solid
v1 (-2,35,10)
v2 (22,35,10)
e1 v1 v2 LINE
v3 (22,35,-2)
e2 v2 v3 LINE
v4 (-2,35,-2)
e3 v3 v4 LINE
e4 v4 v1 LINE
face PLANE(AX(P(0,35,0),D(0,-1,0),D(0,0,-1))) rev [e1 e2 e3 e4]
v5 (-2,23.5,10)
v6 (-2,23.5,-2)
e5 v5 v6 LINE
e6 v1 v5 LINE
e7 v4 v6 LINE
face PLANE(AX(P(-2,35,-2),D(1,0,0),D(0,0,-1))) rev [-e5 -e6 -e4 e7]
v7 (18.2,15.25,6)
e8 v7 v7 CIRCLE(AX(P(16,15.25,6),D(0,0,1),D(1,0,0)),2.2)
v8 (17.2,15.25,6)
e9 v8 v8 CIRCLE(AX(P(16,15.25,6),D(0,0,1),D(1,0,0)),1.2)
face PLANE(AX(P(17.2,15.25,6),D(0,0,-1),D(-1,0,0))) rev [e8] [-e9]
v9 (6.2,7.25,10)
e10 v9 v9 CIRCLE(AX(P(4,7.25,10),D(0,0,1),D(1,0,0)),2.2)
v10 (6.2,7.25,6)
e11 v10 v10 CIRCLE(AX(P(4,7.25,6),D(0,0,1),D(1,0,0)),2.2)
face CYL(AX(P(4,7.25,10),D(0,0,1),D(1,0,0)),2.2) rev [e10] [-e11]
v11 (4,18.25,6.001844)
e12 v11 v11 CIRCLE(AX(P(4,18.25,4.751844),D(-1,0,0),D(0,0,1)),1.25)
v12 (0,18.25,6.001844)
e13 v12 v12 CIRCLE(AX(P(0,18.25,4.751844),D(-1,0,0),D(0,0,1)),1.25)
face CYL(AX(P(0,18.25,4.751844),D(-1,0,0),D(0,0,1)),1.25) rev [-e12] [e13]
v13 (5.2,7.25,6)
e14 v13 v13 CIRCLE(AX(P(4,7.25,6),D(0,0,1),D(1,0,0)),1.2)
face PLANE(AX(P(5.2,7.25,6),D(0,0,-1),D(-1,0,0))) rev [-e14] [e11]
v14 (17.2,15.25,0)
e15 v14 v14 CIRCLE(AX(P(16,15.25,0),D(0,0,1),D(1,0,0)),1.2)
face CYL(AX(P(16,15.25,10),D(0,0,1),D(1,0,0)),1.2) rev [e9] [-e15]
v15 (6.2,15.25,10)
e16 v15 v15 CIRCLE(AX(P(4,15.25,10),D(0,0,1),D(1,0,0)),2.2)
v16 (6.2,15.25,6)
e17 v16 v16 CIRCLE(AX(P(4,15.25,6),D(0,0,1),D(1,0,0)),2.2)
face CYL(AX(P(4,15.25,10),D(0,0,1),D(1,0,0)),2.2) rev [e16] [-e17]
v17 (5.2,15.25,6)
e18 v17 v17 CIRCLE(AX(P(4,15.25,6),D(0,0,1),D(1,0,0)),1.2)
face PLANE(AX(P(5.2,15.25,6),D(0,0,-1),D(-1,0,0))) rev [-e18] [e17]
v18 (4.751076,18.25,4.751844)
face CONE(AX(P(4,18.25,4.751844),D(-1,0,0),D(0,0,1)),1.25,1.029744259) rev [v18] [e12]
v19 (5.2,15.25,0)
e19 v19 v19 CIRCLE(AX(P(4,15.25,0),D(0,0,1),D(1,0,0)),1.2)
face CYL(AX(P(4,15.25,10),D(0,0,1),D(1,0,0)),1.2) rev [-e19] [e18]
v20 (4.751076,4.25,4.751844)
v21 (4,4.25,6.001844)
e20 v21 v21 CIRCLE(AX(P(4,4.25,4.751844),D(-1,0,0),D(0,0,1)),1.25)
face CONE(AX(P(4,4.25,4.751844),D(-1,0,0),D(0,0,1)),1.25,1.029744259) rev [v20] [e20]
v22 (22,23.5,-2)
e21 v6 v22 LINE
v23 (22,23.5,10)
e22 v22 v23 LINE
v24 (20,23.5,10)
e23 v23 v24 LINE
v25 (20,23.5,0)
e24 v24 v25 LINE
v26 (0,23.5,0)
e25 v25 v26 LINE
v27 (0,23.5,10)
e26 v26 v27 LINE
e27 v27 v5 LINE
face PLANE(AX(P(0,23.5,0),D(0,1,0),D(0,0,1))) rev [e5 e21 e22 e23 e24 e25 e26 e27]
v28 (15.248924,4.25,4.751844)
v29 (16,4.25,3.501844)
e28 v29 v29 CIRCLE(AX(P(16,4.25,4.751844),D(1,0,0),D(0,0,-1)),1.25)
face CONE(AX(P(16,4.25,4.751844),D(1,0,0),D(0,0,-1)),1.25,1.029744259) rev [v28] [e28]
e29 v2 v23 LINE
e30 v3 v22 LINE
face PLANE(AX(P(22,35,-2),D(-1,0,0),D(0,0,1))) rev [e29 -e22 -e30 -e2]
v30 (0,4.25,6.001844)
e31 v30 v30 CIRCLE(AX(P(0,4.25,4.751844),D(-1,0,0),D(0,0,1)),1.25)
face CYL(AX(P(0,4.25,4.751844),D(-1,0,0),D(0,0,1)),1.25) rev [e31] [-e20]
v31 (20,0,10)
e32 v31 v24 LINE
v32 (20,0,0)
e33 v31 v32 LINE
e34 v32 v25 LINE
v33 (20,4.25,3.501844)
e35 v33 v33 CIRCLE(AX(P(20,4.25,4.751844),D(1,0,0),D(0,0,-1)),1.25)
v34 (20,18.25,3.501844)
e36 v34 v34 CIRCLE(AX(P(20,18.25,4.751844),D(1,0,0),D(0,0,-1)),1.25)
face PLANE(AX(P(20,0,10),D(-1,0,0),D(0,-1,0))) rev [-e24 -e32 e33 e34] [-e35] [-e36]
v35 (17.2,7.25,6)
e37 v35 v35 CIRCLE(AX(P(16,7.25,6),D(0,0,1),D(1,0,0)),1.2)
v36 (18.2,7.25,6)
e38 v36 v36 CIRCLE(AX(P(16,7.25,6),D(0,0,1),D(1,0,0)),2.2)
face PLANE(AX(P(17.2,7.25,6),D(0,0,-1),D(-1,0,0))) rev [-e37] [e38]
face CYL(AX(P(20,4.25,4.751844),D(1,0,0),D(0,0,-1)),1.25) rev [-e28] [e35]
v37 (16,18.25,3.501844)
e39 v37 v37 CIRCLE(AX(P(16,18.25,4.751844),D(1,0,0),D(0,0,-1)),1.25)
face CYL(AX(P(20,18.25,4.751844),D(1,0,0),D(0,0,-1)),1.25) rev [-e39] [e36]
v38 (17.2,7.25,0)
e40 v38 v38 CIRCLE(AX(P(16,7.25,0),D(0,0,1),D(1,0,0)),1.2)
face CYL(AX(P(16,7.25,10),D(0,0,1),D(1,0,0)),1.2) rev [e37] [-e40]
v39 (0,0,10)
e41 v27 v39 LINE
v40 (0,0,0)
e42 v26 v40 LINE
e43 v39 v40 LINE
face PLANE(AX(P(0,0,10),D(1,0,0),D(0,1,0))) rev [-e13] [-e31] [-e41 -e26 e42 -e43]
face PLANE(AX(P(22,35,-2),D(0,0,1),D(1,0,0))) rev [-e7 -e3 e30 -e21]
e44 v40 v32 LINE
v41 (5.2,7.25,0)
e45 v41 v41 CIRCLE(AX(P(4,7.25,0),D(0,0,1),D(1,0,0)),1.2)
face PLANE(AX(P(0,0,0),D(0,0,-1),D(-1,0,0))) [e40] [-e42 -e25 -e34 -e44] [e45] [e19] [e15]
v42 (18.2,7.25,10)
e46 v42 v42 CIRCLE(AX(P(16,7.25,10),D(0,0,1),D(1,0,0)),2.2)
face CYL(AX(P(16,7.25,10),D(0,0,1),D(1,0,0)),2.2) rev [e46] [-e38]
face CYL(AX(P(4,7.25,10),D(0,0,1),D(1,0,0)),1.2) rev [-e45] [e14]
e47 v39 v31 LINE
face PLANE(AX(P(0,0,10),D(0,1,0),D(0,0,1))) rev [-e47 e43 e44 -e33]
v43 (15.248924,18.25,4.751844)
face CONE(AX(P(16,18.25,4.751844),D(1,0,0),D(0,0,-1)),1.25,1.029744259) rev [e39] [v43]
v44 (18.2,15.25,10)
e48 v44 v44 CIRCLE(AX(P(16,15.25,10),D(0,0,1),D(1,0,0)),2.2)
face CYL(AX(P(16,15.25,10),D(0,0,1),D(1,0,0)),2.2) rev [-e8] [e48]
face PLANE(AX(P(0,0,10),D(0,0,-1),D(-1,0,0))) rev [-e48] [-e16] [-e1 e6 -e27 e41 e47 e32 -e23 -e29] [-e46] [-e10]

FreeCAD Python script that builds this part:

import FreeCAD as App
import Part
import Sketcher
from FreeCAD import Vector

doc = App.newDocument("Part")
body = doc.addObject("PartDesign::Body", "Body")

# Sketch on XY plane
sketch1 = body.newObject("Sketcher::SketchObject", "Sketch")
sketch1.AttachmentSupport = (doc.getObject("XY_Plane"), [""])
sketch1.MapMode = "FlatFace"
sketch1.addGeometry([
    Part.LineSegment(Vector(0, 22.5, 0), Vector(0, 0, 0)),
    Part.LineSegment(Vector(0, 0, 0), Vector(20, 0, 0)),
    Part.LineSegment(Vector(20, 0, 0), Vector(20, 22.5, 0)),
    Part.LineSegment(Vector(20, 22.5, 0), Vector(0, 22.5, 0)),
], False)
sketch1.addConstraint([
    Sketcher.Constraint("Coincident", 0, 2, 1, 1),
    Sketcher.Constraint("Coincident", 1, 2, 2, 1),
    Sketcher.Constraint("Coincident", 2, 2, 3, 1),
    Sketcher.Constraint("Coincident", 3, 2, 0, 1),
    Sketcher.Constraint("Vertical", 0),
    Sketcher.Constraint("Horizontal", 1),
    Sketcher.Constraint("Vertical", 2),
    Sketcher.Constraint("Horizontal", 3),
    Sketcher.Constraint("Coincident", 0, 2, -1, 1),
    Sketcher.Constraint("DistanceX", 1, 1, 1, 2, 20.0),
    Sketcher.Constraint("DistanceY", 0, 2, 0, 1, 22.5),
])
pad1 = body.newObject("PartDesign::Pad", "Pad")
pad1.Profile = sketch1
pad1.Length = 10

# Sketch on XY plane
sketch2 = body.newObject("Sketcher::SketchObject", "Sketch001")
sketch2.AttachmentSupport = (doc.getObject("XY_Plane"), [""])
sketch2.MapMode = "FlatFace"
sketch2.AttachmentOffset = App.Placement(Vector(0, 0, 10), App.Rotation())
sketch2.addGeometry([
    Part.Circle(Vector(4, 15.25, 0), Vector(0, 0, 1), 1.2),
    Part.Circle(Vector(16, 15.25, 0), Vector(0, 0, 1), 1.2),
    Part.Circle(Vector(16, 7.25, 0), Vector(0, 0, 1), 1.2),
    Part.Circle(Vector(4, 7.25, 0), Vector(0, 0, 1), 1.2),
], False)
sketch2.addConstraint([
    Sketcher.Constraint("Equal", 0, 1),
    Sketcher.Constraint("Equal", 1, 2),
    Sketcher.Constraint("Equal", 2, 3),
    Sketcher.Constraint("Horizontal", 0, 3, 1, 3),
    Sketcher.Constraint("Horizontal", 2, 3, 3, 3),
    Sketcher.Constraint("Vertical", 1, 3, 2, 3),
    Sketcher.Constraint("Vertical", 0, 3, 3, 3),
    Sketcher.Constraint("Diameter", 0, 2.4),
    Sketcher.Constraint("DistanceX", -1, 1, 0, 3, 4.0),
    Sketcher.Constraint("DistanceX", -1, 1, 1, 3, 16.0),
    Sketcher.Constraint("DistanceY", 2, 3, 1, 3, 8.0),
    Sketcher.Constraint("DistanceY", -1, 1, 0, 3, 15.25),
])
doc.recompute()
hole = body.newObject("PartDesign::Hole", "Hole")
hole.Profile = sketch2
hole.ThreadType = "None"
hole.Diameter = 2.4
hole.DepthType = "ThroughAll"
hole.HoleCutType = "Counterbore"
hole.HoleCutDiameter = 4.4
hole.HoleCutDepth = 4

# Sketch on XZ plane
sketch3 = body.newObject("Sketcher::SketchObject", "Sketch002")
sketch3.AttachmentSupport = (doc.getObject("XZ_Plane"), [""])
sketch3.MapMode = "FlatFace"
sketch3.AttachmentOffset = App.Placement(Vector(0, 0, -22.5), App.Rotation())
sketch3.addGeometry([
    Part.LineSegment(Vector(-2, -2, 0), Vector(-2, 10, 0)),
    Part.LineSegment(Vector(-2, 10, 0), Vector(22, 10, 0)),
    Part.LineSegment(Vector(22, 10, 0), Vector(22, -2, 0)),
    Part.LineSegment(Vector(22, -2, 0), Vector(-2, -2, 0)),
], False)
sketch3.addConstraint([
    Sketcher.Constraint("Coincident", 0, 2, 1, 1),
    Sketcher.Constraint("Coincident", 1, 2, 2, 1),
    Sketcher.Constraint("Coincident", 2, 2, 3, 1),
    Sketcher.Constraint("Coincident", 3, 2, 0, 1),
    Sketcher.Constraint("Vertical", 0),
    Sketcher.Constraint("Horizontal", 1),
    Sketcher.Constraint("Vertical", 2),
    Sketcher.Constraint("Horizontal", 3),
    Sketcher.Constraint("DistanceX", 1, 1, 1, 2, 24.0),
    Sketcher.Constraint("DistanceY", 0, 1, 0, 2, 12.0),
    Sketcher.Constraint("DistanceX", 0, 2, -1, 1, 2.0),
    Sketcher.Constraint("DistanceY", -1, 1, 0, 2, 10.0),
])
pad2 = body.newObject("PartDesign::Pad", "Pad001")
pad2.Profile = sketch3
pad2.Length = 12.5
pad2.Reversed = True

# Sketch on YZ plane
sketch4 = body.newObject("Sketcher::SketchObject", "Sketch003")
sketch4.AttachmentSupport = (doc.getObject("YZ_Plane"), [""])
sketch4.MapMode = "FlatFace"
sketch4.AttachmentOffset = App.Placement(Vector(0, 0, 20), App.Rotation())
sketch4.addGeometry([
    Part.Circle(Vector(18.25, 4.751844, 0), Vector(0, 0, 1), 1.25),
    Part.Circle(Vector(4.25, 4.751844, 0), Vector(0, 0, 1), 1.25),
], False)
sketch4.addConstraint([
    Sketcher.Constraint("Equal", 0, 1),
    Sketcher.Constraint("Horizontal", 0, 3, 1, 3),
    Sketcher.Constraint("Diameter", 0, 2.5),
    Sketcher.Constraint("DistanceX", 1, 3, 0, 3, 14.0),
    Sketcher.Constraint("DistanceX", -1, 1, 0, 3, 18.25),
    Sketcher.Constraint("DistanceY", -1, 1, 0, 3, 4.751844),
])
doc.recompute()
hole2 = body.newObject("PartDesign::Hole", "Hole001")
hole2.Profile = sketch4
hole2.ThreadType = "None"
hole2.Diameter = 2.5
hole2.DepthType = "Dimension"
hole2.Depth = 4
hole2.DrillPoint = "Angled"
hole2.DrillPointAngle = 118

# Sketch on YZ plane
sketch5 = body.newObject("Sketcher::SketchObject", "Sketch004")
sketch5.AttachmentSupport = (doc.getObject("YZ_Plane"), [""])
sketch5.MapMode = "FlatFace"
sketch5.addGeometry([
    Part.Circle(Vector(18.25, 4.751844, 0), Vector(0, 0, 1), 1.25),
    Part.Circle(Vector(4.25, 4.751844, 0), Vector(0, 0, 1), 1.25),
], False)
sketch5.addConstraint([
    Sketcher.Constraint("Equal", 0, 1),
    Sketcher.Constraint("Horizontal", 0, 3, 1, 3),
    Sketcher.Constraint("Diameter", 0, 2.5),
    Sketcher.Constraint("DistanceX", 1, 3, 0, 3, 14.0),
    Sketcher.Constraint("DistanceX", -1, 1, 0, 3, 18.25),
    Sketcher.Constraint("DistanceY", -1, 1, 0, 3, 4.751844),
])
doc.recompute()
hole3 = body.newObject("PartDesign::Hole", "Hole002")
hole3.Profile = sketch5
hole3.ThreadType = "None"
hole3.Diameter = 2.5
hole3.DepthType = "Dimension"
hole3.Depth = 4
hole3.DrillPoint = "Angled"
hole3.DrillPointAngle = 118
hole3.Reversed = True

# Sketch on XZ plane
sketch6 = body.newObject("Sketcher::SketchObject", "Sketch005")
sketch6.AttachmentSupport = (doc.getObject("XZ_Plane"), [""])
sketch6.MapMode = "FlatFace"
sketch6.AttachmentOffset = App.Placement(Vector(0, 0, -22.5), App.Rotation())
sketch6.addGeometry([
    Part.LineSegment(Vector(0, 0, 0), Vector(0, 10, 0)),  # 0
    Part.LineSegment(Vector(0, 10, 0), Vector(-2, 10, 0)),  # 1
    Part.LineSegment(Vector(-2, 10, 0), Vector(-2, -2, 0)),  # 2
    Part.LineSegment(Vector(-2, -2, 0), Vector(22, -2, 0)),  # 3
    Part.LineSegment(Vector(22, -2, 0), Vector(22, 10, 0)),  # 4
    Part.LineSegment(Vector(22, 10, 0), Vector(20, 10, 0)),  # 5
    Part.LineSegment(Vector(20, 10, 0), Vector(20, 0, 0)),  # 6
    Part.LineSegment(Vector(20, 0, 0), Vector(0, 0, 0)),  # 7
], False)
sketch6.addConstraint([
    Sketcher.Constraint("Coincident", 0, 2, 1, 1),
    Sketcher.Constraint("Coincident", 1, 2, 2, 1),
    Sketcher.Constraint("Coincident", 2, 2, 3, 1),
    Sketcher.Constraint("Coincident", 3, 2, 4, 1),
    Sketcher.Constraint("Coincident", 4, 2, 5, 1),
    Sketcher.Constraint("Coincident", 5, 2, 6, 1),
    Sketcher.Constraint("Coincident", 6, 2, 7, 1),
    Sketcher.Constraint("Coincident", 7, 2, 0, 1),
    Sketcher.Constraint("Vertical", 0),
    Sketcher.Constraint("Horizontal", 1),
    Sketcher.Constraint("Vertical", 2),
    Sketcher.Constraint("Horizontal", 3),
    Sketcher.Constraint("Vertical", 4),
    Sketcher.Constraint("Horizontal", 5),
    Sketcher.Constraint("Vertical", 6),
    Sketcher.Constraint("Horizontal", 7),
    Sketcher.Constraint("Coincident", 7, 2, -1, 1),
    Sketcher.Constraint("Horizontal", 1, 2, 4, 2),
    Sketcher.Constraint("Equal", 1, 5),
    Sketcher.Constraint("DistanceX", 1, 2, 1, 1, 2.0),
    Sketcher.Constraint("DistanceX", 3, 1, 3, 2, 24.0),
    Sketcher.Constraint("DistanceY", 0, 1, 0, 2, 10.0),
    Sketcher.Constraint("DistanceY", 2, 2, 2, 1, 12.0),
])
pocket1 = body.newObject("PartDesign::Pocket", "Pocket")
pocket1.Profile = sketch6
pocket1.Length = 1

doc.recompute()
